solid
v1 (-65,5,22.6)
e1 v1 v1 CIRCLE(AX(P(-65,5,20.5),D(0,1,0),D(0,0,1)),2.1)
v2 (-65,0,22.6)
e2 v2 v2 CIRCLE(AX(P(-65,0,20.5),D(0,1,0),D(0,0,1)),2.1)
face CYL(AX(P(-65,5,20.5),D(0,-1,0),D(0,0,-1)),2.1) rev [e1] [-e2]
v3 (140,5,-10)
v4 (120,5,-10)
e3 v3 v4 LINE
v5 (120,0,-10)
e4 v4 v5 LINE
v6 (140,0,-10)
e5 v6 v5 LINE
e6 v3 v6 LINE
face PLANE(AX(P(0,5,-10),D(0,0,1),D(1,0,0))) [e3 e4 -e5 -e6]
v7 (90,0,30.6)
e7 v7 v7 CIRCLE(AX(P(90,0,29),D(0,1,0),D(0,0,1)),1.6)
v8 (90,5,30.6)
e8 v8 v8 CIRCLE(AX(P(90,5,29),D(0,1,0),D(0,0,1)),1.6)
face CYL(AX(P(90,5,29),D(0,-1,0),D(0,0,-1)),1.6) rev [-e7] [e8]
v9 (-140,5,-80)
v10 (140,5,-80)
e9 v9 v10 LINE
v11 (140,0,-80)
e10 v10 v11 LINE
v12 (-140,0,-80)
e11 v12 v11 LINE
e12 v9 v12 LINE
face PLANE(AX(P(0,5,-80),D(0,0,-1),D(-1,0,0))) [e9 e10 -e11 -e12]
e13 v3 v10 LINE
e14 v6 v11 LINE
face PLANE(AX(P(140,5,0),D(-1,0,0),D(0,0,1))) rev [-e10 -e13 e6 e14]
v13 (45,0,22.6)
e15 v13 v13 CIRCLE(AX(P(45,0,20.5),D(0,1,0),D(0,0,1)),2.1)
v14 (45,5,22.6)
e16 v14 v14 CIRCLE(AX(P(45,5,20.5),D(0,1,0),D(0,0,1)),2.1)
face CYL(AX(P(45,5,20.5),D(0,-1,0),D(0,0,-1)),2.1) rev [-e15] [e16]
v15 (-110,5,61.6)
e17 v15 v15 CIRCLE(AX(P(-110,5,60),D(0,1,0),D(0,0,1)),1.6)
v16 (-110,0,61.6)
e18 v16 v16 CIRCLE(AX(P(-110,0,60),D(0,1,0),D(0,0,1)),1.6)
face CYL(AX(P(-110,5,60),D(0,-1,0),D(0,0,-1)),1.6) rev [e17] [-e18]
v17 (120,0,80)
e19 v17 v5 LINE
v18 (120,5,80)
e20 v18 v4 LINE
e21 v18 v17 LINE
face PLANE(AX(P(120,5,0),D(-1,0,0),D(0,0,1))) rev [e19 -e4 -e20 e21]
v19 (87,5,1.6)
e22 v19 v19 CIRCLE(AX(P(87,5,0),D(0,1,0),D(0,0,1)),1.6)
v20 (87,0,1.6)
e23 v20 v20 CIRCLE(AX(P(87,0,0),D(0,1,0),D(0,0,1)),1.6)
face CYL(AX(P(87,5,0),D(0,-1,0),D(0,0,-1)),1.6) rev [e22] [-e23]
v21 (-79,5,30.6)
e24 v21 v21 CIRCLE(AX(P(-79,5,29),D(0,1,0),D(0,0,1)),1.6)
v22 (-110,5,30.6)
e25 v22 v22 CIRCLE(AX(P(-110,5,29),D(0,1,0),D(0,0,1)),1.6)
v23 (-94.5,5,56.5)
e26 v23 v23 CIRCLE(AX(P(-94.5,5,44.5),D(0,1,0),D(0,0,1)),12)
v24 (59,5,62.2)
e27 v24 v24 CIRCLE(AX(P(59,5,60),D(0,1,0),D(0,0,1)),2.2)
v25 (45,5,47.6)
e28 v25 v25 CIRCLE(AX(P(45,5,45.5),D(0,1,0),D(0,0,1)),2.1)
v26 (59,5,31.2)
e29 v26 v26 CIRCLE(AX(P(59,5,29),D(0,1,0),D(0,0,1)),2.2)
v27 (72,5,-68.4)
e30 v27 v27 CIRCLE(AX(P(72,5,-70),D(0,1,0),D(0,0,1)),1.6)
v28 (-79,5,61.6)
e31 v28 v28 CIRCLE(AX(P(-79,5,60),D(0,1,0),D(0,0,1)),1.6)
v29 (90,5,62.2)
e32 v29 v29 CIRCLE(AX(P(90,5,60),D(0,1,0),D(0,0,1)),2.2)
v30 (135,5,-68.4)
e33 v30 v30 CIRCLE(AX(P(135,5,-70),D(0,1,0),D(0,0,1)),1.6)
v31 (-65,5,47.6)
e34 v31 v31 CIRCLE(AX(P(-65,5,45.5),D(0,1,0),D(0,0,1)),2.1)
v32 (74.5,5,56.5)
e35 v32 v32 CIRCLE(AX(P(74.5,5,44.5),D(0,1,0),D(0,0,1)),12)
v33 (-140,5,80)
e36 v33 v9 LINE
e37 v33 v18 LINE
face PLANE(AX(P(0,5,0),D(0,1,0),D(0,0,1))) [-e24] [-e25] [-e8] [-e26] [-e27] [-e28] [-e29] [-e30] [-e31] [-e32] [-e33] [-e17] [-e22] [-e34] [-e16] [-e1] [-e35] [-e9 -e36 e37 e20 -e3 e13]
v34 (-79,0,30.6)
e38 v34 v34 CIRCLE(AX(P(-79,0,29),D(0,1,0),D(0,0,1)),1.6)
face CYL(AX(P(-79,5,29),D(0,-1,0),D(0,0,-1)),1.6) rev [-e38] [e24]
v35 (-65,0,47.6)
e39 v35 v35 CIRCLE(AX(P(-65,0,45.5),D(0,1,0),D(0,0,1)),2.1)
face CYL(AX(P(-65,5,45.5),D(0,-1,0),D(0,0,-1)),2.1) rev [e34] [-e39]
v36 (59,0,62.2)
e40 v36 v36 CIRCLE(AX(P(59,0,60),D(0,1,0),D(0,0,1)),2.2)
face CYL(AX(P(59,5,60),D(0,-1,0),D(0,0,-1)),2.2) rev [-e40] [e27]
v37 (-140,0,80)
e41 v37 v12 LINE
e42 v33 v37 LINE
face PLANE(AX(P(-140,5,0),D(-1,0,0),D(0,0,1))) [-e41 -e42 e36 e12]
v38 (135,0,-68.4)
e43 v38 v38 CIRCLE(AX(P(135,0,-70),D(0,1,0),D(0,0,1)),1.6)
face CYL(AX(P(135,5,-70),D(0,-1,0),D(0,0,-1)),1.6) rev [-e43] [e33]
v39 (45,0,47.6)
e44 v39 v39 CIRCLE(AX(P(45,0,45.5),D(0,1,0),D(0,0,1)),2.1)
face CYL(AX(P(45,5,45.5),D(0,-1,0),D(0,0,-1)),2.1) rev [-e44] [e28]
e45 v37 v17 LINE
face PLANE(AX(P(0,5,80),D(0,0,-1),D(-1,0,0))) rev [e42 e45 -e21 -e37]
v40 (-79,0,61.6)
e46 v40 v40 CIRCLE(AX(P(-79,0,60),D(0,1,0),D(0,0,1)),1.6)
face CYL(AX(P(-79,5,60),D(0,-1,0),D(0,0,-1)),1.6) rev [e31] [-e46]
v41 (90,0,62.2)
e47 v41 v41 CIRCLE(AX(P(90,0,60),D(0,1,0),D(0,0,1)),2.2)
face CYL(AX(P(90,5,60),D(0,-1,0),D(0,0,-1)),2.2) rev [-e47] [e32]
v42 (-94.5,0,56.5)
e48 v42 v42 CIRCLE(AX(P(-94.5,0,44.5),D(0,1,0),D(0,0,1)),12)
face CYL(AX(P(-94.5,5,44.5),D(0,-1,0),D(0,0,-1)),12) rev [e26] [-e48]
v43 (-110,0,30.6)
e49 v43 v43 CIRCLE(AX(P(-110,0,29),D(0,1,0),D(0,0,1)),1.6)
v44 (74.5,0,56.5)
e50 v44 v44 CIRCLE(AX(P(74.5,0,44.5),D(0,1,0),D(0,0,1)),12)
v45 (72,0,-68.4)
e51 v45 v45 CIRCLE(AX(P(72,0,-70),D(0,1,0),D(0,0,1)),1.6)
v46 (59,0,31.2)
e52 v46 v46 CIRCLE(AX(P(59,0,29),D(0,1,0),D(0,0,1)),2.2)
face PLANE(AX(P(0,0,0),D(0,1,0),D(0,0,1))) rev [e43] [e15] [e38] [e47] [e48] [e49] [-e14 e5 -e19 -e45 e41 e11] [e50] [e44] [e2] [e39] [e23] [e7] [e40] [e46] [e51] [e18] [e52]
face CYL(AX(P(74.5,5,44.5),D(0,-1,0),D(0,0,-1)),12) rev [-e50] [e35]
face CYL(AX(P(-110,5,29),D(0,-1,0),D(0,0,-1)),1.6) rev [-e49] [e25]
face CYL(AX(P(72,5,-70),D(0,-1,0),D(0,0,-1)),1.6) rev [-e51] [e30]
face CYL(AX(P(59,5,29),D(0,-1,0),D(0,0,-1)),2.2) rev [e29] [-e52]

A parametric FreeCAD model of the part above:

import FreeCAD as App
import Part
import Sketcher

V = App.Vector


def add_polygon(sketch, points):
    """Adds a closed chain of lines whose ends are joined by coincident constraints."""
    first, n = sketch.GeometryCount, len(points)
    for a, b in zip(points, points[1:] + points[:1]):
        sketch.addGeometry(Part.LineSegment(App.Vector(*a, 0), App.Vector(*b, 0)), False)
    for i in range(n):
        sketch.addConstraint(Sketcher.Constraint("Coincident", first + i, 2, first + (i + 1) % n, 1))

doc = App.newDocument("Part")
body = doc.addObject("PartDesign::Body", "Body")

sketch1 = body.newObject("Sketcher::SketchObject", "Sketch")
sketch1.AttachmentSupport = (doc.getObject("XZ_Plane"), [""])
sketch1.MapMode = "FlatFace"
add_polygon(sketch1, [(-140, -80), (-140, 80), (120, 80), (120, -10), (140, -10), (140, -80)])
sketch1.addGeometry(Part.Circle(V(-110, 60, 0), V(0, 0, 1), 1.6), False)
sketch1.addGeometry(Part.Circle(V(-79, 60, 0), V(0, 0, 1), 1.6), False)
sketch1.addGeometry(Part.Circle(V(-65, 45.5, 0), V(0, 0, 1), 2.1), False)
sketch1.addGeometry(Part.Circle(V(-94.5, 44.5, 0), V(0, 0, 1), 12), False)
sketch1.addGeometry(Part.Circle(V(-110, 29, 0), V(0, 0, 1), 1.6), False)
sketch1.addGeometry(Part.Circle(V(-79, 29, 0), V(0, 0, 1), 1.6), False)
sketch1.addGeometry(Part.Circle(V(-65, 20.5, 0), V(0, 0, 1), 2.1), False)
sketch1.addGeometry(Part.Circle(V(59, 60, 0), V(0, 0, 1), 2.2), False)
sketch1.addGeometry(Part.Circle(V(45, 45.5, 0), V(0, 0, 1), 2.1), False)
sketch1.addGeometry(Part.Circle(V(74.5, 44.5, 0), V(0, 0, 1), 12), False)
sketch1.addGeometry(Part.Circle(V(59, 29, 0), V(0, 0, 1), 2.2), False)
sketch1.addGeometry(Part.Circle(V(90, 60, 0), V(0, 0, 1), 2.2), False)
sketch1.addGeometry(Part.Circle(V(90, 29, 0), V(0, 0, 1), 1.6), False)
sketch1.addGeometry(Part.Circle(V(45, 20.5, 0), V(0, 0, 1), 2.1), False)
sketch1.addGeometry(Part.Circle(V(87, 0, 0), V(0, 0, 1), 1.6), False)
sketch1.addGeometry(Part.Circle(V(72, -70, 0), V(0, 0, 1), 1.6), False)
sketch1.addGeometry(Part.Circle(V(135, -70, 0), V(0, 0, 1), 1.6), False)
sketch1.addConstraint(Sketcher.Constraint("Vertical", 0))
sketch1.addConstraint(Sketcher.Constraint("Horizontal", 1))
sketch1.addConstraint(Sketcher.Constraint("Vertical", 2))
sketch1.addConstraint(Sketcher.Constraint("Horizontal", 3))
sketch1.addConstraint(Sketcher.Constraint("Vertical", 4))
sketch1.addConstraint(Sketcher.Constraint("Horizontal", 5))
sketch1.addConstraint(Sketcher.Constraint("Equal", 6, 7))
sketch1.addConstraint(Sketcher.Constraint("Equal", 7, 10))
sketch1.addConstraint(Sketcher.Constraint("Equal", 10, 11))
sketch1.addConstraint(Sketcher.Constraint("Equal", 8, 12))
sketch1.addConstraint(Sketcher.Constraint("Equal", 12, 14))
sketch1.addConstraint(Sketcher.Constraint("Equal", 9, 15))
sketch1.addConstraint(Sketcher.Constraint("Equal", 13, 16))
sketch1.addConstraint(Sketcher.Constraint("Equal", 16, 17))
sketch1.addConstraint(Sketcher.Constraint("Equal", 11, 18))
sketch1.addConstraint(Sketcher.Constraint("Equal", 14, 19))
sketch1.addConstraint(Sketcher.Constraint("Equal", 18, 20))
sketch1.addConstraint(Sketcher.Constraint("Equal", 20, 21))
sketch1.addConstraint(Sketcher.Constraint("Equal", 21, 22))
sketch1.addConstraint(Sketcher.Constraint("Symmetric", 0, 2, 4, 2, -1, 1))
sketch1.addConstraint(Sketcher.Constraint("PointOnObject", 20, 3, -1))
sketch1.addConstraint(Sketcher.Constraint("Horizontal", 6, 3, 7, 3))
sketch1.addConstraint(Sketcher.Constraint("Horizontal", 10, 3, 11, 3))
sketch1.addConstraint(Sketcher.Constraint("Horizontal", 7, 3, 13, 3))
sketch1.addConstraint(Sketcher.Constraint("Horizontal", 8, 3, 14, 3))
sketch1.addConstraint(Sketcher.Constraint("Horizontal", 9, 3, 15, 3))
sketch1.addConstraint(Sketcher.Constraint("Horizontal", 11, 3, 16, 3))
sketch1.addConstraint(Sketcher.Constraint("Horizontal", 13, 3, 17, 3))
sketch1.addConstraint(Sketcher.Constraint("Horizontal", 16, 3, 18, 3))
sketch1.addConstraint(Sketcher.Constraint("Horizontal", 12, 3, 19, 3))
sketch1.addConstraint(Sketcher.Constraint("Horizontal", 21, 3, 22, 3))
sketch1.addConstraint(Sketcher.Constraint("Vertical", 6, 3, 10, 3))
sketch1.addConstraint(Sketcher.Constraint("Vertical", 7, 3, 11, 3))
sketch1.addConstraint(Sketcher.Constraint("Vertical", 8, 3, 12, 3))
sketch1.addConstraint(Sketcher.Constraint("Vertical", 13, 3, 16, 3))
sketch1.addConstraint(Sketcher.Constraint("Vertical", 17, 3, 18, 3))
sketch1.addConstraint(Sketcher.Constraint("Vertical", 14, 3, 19, 3))
sketch1.addConstraint(Sketcher.Constraint("Diameter", 9, 24.0))
sketch1.addConstraint(Sketcher.Constraint("Diameter", 6, 3.2))
sketch1.addConstraint(Sketcher.Constraint("Diameter", 8, 4.2))
sketch1.addConstraint(Sketcher.Constraint("Diameter", 13, 4.4))
sketch1.addConstraint(Sketcher.Constraint("DistanceX", 1, 1, 1, 2, 260.0))
sketch1.addConstraint(Sketcher.Constraint("DistanceX", 3, 1, 3, 2, 20.0))
sketch1.addConstraint(Sketcher.Constraint("DistanceY", 0, 1, 0, 2, 160.0))
sketch1.addConstraint(Sketcher.Constraint("DistanceY", 2, 2, 2, 1, 90.0))
sketch1.addConstraint(Sketcher.Constraint("DistanceX", 6, 3, -1, 1, 110.0))
sketch1.addConstraint(Sketcher.Constraint("DistanceY", -1, 1, 6, 3, 60.0))
sketch1.addConstraint(Sketcher.Constraint("DistanceX", 7, 3, -1, 1, 79.0))
sketch1.addConstraint(Sketcher.Constraint("DistanceX", 8, 3, -1, 1, 65.0))
sketch1.addConstraint(Sketcher.Constraint("DistanceY", -1, 1, 10, 3, 29.0))
sketch1.addConstraint(Sketcher.Constraint("DistanceX", -1, 1, 13, 3, 59.0))
sketch1.addConstraint(Sketcher.Constraint("DistanceX", -1, 1, 14, 3, 45.0))
sketch1.addConstraint(Sketcher.Constraint("DistanceX", -1, 1, 17, 3, 90.0))
sketch1.addConstraint(Sketcher.Constraint("DistanceX", -1, 1, 20, 3, 87.0))
sketch1.addConstraint(Sketcher.Constraint("DistanceX", -1, 1, 21, 3, 72.0))
sketch1.addConstraint(Sketcher.Constraint("DistanceY", 21, 3, -1, 1, 70.0))
sketch1.addConstraint(Sketcher.Constraint("DistanceX", -1, 1, 22, 3, 135.0))
sketch1.addConstraint(Sketcher.Constraint("DistanceY", 9, 3, 8, 3, 1.0))
sketch1.addConstraint(Sketcher.Constraint("DistanceY", 12, 3, 8, 3, 25.0))
sketch1.addConstraint(Sketcher.Constraint("DistanceY", -1, 1, 8, 3, 45.5))
sketch1.addConstraint(Sketcher.Constraint("DistanceX", 9, 3, -1, 1, 94.5))
sketch1.addConstraint(Sketcher.Constraint("DistanceX", -1, 1, 15, 3, 74.5))
pad1 = body.newObject("PartDesign::Pad", "Pad")
pad1.Profile = sketch1
pad1.Length = 5
pad1.Reversed = True

doc.recompute()
